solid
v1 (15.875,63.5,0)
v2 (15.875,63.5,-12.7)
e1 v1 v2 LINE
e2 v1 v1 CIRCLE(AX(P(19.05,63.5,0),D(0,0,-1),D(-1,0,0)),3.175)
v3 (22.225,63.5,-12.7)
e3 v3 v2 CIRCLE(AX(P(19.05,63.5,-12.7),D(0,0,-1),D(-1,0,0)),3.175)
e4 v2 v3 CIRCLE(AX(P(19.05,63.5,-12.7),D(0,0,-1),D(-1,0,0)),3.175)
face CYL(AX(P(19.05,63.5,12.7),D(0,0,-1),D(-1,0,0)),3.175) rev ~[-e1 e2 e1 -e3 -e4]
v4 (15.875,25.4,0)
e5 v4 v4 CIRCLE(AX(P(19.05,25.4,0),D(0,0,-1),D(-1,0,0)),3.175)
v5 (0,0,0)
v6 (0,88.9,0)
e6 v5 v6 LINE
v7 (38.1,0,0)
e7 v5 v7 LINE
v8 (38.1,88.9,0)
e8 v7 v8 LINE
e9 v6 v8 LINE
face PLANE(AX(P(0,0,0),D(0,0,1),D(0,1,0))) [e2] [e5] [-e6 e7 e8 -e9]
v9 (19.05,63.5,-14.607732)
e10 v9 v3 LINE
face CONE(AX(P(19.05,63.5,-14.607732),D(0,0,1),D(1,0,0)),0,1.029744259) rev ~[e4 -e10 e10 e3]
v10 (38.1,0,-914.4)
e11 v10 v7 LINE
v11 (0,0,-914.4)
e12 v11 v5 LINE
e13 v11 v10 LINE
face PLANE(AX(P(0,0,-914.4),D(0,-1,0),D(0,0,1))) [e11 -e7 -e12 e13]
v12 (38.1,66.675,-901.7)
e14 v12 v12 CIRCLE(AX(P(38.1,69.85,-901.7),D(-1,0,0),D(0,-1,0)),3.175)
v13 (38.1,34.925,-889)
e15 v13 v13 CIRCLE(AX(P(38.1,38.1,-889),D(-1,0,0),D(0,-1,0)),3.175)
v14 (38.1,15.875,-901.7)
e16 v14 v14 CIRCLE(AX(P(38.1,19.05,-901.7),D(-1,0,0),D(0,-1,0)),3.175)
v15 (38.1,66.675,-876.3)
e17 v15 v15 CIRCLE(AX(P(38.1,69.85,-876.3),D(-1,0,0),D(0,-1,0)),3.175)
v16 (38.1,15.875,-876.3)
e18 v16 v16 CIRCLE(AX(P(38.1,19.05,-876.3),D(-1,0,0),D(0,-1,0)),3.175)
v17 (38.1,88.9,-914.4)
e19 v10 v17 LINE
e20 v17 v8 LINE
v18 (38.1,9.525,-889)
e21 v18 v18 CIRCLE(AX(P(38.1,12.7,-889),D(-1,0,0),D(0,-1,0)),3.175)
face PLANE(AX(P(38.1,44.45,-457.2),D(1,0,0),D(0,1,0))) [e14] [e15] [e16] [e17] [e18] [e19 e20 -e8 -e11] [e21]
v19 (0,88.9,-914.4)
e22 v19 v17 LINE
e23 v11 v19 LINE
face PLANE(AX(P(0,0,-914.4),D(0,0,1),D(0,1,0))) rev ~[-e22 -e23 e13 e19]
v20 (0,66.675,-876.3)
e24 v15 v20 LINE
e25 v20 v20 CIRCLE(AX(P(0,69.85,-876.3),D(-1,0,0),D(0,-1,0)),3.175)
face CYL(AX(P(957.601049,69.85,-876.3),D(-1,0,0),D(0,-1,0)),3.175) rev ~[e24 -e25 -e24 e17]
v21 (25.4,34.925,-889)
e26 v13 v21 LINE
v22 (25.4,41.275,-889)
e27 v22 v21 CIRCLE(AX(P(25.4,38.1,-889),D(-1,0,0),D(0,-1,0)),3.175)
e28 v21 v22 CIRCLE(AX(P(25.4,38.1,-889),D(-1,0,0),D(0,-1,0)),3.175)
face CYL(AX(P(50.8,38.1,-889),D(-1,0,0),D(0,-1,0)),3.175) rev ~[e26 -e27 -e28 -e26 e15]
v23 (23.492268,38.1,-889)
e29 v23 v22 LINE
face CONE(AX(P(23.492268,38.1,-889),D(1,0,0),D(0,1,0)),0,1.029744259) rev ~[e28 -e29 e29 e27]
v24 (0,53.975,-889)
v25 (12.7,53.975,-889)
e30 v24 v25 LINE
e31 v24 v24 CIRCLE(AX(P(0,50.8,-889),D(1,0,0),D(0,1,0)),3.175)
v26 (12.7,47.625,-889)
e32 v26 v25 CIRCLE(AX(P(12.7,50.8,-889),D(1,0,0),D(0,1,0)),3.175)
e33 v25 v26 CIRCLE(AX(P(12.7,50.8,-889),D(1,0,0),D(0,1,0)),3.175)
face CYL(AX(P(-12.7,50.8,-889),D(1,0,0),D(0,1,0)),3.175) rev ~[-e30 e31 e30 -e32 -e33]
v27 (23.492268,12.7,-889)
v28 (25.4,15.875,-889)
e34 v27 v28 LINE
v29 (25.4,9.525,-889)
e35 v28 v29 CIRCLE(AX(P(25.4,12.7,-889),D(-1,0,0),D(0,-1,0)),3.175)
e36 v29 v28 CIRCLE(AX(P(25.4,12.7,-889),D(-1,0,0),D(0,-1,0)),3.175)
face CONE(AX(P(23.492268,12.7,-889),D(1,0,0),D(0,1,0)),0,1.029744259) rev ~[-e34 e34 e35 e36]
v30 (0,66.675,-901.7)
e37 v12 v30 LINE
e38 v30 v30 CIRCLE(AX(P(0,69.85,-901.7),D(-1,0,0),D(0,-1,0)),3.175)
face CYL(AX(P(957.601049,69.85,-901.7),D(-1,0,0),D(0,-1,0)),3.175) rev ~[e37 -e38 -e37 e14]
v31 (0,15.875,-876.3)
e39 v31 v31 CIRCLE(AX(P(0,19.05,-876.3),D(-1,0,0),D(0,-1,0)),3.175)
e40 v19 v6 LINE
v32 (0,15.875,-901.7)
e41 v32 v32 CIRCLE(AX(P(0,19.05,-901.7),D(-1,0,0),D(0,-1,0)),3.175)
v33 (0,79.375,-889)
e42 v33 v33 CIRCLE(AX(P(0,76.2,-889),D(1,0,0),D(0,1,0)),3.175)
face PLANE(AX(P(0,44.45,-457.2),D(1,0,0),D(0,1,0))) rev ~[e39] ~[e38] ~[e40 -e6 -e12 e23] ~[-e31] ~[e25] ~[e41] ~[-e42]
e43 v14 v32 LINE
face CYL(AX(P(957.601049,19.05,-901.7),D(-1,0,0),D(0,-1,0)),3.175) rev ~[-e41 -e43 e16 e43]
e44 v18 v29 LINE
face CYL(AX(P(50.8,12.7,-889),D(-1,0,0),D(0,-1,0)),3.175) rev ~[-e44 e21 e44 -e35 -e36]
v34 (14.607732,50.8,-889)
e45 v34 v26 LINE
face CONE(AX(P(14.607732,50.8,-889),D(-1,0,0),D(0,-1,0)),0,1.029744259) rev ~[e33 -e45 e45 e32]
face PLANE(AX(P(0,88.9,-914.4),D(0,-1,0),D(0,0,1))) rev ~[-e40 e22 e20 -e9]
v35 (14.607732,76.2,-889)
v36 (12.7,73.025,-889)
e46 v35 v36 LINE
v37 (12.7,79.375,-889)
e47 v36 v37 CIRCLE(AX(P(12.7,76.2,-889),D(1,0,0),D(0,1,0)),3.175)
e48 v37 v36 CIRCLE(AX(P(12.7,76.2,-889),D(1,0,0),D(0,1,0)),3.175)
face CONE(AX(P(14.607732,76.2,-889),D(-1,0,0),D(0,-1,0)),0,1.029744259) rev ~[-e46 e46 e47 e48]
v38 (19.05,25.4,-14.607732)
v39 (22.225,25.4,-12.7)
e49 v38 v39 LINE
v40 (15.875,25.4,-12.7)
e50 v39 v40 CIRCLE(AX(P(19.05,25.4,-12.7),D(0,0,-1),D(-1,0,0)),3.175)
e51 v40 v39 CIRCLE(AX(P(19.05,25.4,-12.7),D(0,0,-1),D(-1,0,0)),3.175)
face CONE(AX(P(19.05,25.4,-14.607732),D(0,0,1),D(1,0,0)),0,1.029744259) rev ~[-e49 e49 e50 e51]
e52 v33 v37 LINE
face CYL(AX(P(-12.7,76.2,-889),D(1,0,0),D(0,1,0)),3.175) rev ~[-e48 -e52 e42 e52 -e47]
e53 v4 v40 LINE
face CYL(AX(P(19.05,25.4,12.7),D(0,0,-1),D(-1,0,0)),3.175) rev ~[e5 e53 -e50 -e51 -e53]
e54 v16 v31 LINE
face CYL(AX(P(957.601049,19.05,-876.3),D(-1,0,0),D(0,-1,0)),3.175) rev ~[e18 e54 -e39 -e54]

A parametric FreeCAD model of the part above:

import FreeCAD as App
import Part
import Sketcher
Q = App.Units.Quantity

doc = App.newDocument("Part")
body = doc.addObject("PartDesign::Body", "Body")

sketch1 = doc.addObject("Sketcher::SketchObject", "Sketch")
body.addObject(sketch1)
sketch1.AttachmentSupport = (doc.YZ_Plane, [""])
sketch1.MapMode = "FlatFace"
sketch1.addGeometry([
    Part.LineSegment(App.Vector(0, 0, 0), App.Vector(0, -914.4, 0)),
    Part.LineSegment(App.Vector(0, -914.4, 0), App.Vector(88.9, -914.4, 0)),
    Part.LineSegment(App.Vector(88.9, -914.4, 0), App.Vector(88.9, 0, 0)),
    Part.LineSegment(App.Vector(88.9, 0, 0), App.Vector(0, 0, 0)),
], False)
sketch1.addConstraint([
    Sketcher.Constraint("Coincident", 0, 2, 1, 1),
    Sketcher.Constraint("Coincident", 1, 2, 2, 1),
    Sketcher.Constraint("Coincident", 2, 2, 3, 1),
    Sketcher.Constraint("Coincident", 3, 2, 0, 1),
    Sketcher.Constraint("Vertical", 0),
    Sketcher.Constraint("Horizontal", 1),
    Sketcher.Constraint("Vertical", 2),
    Sketcher.Constraint("Horizontal", 3),
    Sketcher.Constraint("Coincident", 3, 2, -1, 1),
    Sketcher.Constraint("DistanceY", 0, 2, 0, 1, Q("36 in")),
    Sketcher.Constraint("DistanceX", 1, 1, 1, 2, Q("3.5 in")),
])
pad1 = doc.addObject("PartDesign::Pad", "Pad")
body.addObject(pad1)
pad1.Profile = sketch1
pad1.Length = Q("1.5 in")

sketch2 = doc.addObject("Sketcher::SketchObject", "Sketch001")
body.addObject(sketch2)
sketch2.AttachmentSupport = (doc.YZ_Plane, [""])
sketch2.MapMode = "FlatFace"
sketch2.AttachmentOffset = App.Placement(App.Vector(0, 0, 1.5 * 25.4), App.Rotation())
sketch2.addGeometry([
    Part.Circle(App.Vector(19.05, -876.3, 0), App.Vector(0, 0, 1), 3.175),
    Part.Circle(App.Vector(19.05, -901.7, 0), App.Vector(0, 0, 1), 3.175),
    Part.Circle(App.Vector(69.85, -876.3, 0), App.Vector(0, 0, 1), 3.175),
    Part.Circle(App.Vector(69.85, -901.7, 0), App.Vector(0, 0, 1), 3.175),
], False)
sketch2.addConstraint([
    Sketcher.Constraint("Equal", 0, 1),
    Sketcher.Constraint("Equal", 1, 2),
    Sketcher.Constraint("Equal", 2, 3),
    Sketcher.Constraint("Horizontal", 0, 3, 2, 3),
    Sketcher.Constraint("Horizontal", 1, 3, 3, 3),
    Sketcher.Constraint("Vertical", 0, 3, 1, 3),
    Sketcher.Constraint("Vertical", 2, 3, 3, 3),
    Sketcher.Constraint("Diameter", 0, Q("0.25 in")),
    Sketcher.Constraint("DistanceY", 1, 3, 0, 3, Q("1 in")),
    Sketcher.Constraint("DistanceX", 0, 3, 2, 3, Q("2 in")),
    Sketcher.Constraint("DistanceY", 0, 3, -1, 1, Q("34.5 in")),
    Sketcher.Constraint("DistanceX", -1, 1, 0, 3, Q("0.75 in")),
])
doc.recompute()
hole = doc.addObject("PartDesign::Hole", "Hole")
body.addObject(hole)
hole.Profile = sketch2
hole.ThreadType = "None"
hole.Diameter = Q("0.25 in")
hole.DepthType = "ThroughAll"

sketch3 = doc.addObject("Sketcher::SketchObject", "Sketch002")
body.addObject(sketch3)
sketch3.AttachmentSupport = (doc.YZ_Plane, [""])
sketch3.MapMode = "FlatFace"
sketch3.addGeometry([
    Part.Circle(App.Vector(76.2, -889, 0), App.Vector(0, 0, 1), 3.175),
    Part.Circle(App.Vector(50.8, -889, 0), App.Vector(0, 0, 1), 3.175),
], False)
sketch3.addConstraint([
    Sketcher.Constraint("Equal", 0, 1),
    Sketcher.Constraint("Horizontal", 0, 3, 1, 3),
    Sketcher.Constraint("Diameter", 0, Q("0.25 in")),
    Sketcher.Constraint("DistanceX", -1, 1, 0, 3, Q("3 in")),
    Sketcher.Constraint("DistanceY", 0, 3, -1, 1, Q("35 in")),
    Sketcher.Constraint("DistanceX", -1, 1, 1, 3, Q("2 in")),
])
doc.recompute()
hole2 = doc.addObject("PartDesign::Hole", "Hole001")
body.addObject(hole2)
hole2.Profile = sketch3
hole2.ThreadType = "None"
hole2.Diameter = Q("0.25 in")
hole2.DepthType = "Dimension"
hole2.Depth = Q("0.5 in")
hole2.DrillPoint = "Angled"
hole2.DrillPointAngle = 118
hole2.Reversed = True

sketch4 = doc.addObject("Sketcher::SketchObject", "Sketch003")
body.addObject(sketch4)
sketch4.AttachmentSupport = (doc.YZ_Plane, [""])
sketch4.MapMode = "FlatFace"
sketch4.AttachmentOffset = App.Placement(App.Vector(0, 0, 1.5 * 25.4), App.Rotation())
sketch4.addGeometry([
    Part.Circle(App.Vector(12.7, -889, 0), App.Vector(0, 0, 1), 3.175),
    Part.Circle(App.Vector(38.1, -889, 0), App.Vector(0, 0, 1), 3.175),
], False)
sketch4.addConstraint([
    Sketcher.Constraint("Equal", 0, 1),
    Sketcher.Constraint("Horizontal", 0, 3, 1, 3),
    Sketcher.Constraint("Diameter", 0, Q("0.25 in")),
    Sketcher.Constraint("DistanceY", 0, 3, -1, 1, Q("35 in")),
    Sketcher.Constraint("DistanceX", 0, 3, 1, 3, Q("1 in")),
    Sketcher.Constraint("DistanceX", -1, 1, 0, 3, Q("0.5 in")),
])
doc.recompute()
hole3 = doc.addObject("PartDesign::Hole", "Hole002")
body.addObject(hole3)
hole3.Profile = sketch4
hole3.ThreadType = "None"
hole3.Diameter = Q("0.25 in")
hole3.DepthType = "Dimension"
hole3.Depth = Q("0.5 in")
hole3.DrillPoint = "Angled"
hole3.DrillPointAngle = 118

sketch5 = doc.addObject("Sketcher::SketchObject", "Sketch004")
body.addObject(sketch5)
sketch5.AttachmentSupport = (doc.XY_Plane, [""])
sketch5.MapMode = "FlatFace"
sketch5.addGeometry([
    Part.Circle(App.Vector(19.05, 63.5, 0), App.Vector(0, 0, 1), 3.175),
    Part.Circle(App.Vector(19.05, 25.4, 0), App.Vector(0, 0, 1), 3.175),
], False)
sketch5.addConstraint([
    Sketcher.Constraint("Equal", 0, 1),
    Sketcher.Constraint("Vertical", 0, 3, 1, 3),
    Sketcher.Constraint("Diameter", 0, Q("0.25 in")),
    Sketcher.Constraint("DistanceY", -1, 1, 1, 3, Q("1 in")),
    Sketcher.Constraint("DistanceY", -1, 1, 0, 3, Q("2.5 in")),
    Sketcher.Constraint("DistanceX", -1, 1, 0, 3, Q("0.75 in")),
])
doc.recompute()
hole4 = doc.addObject("PartDesign::Hole", "Hole003")
body.addObject(hole4)
hole4.Profile = sketch5
hole4.ThreadType = "None"
hole4.Diameter = Q("0.25 in")
hole4.DepthType = "Dimension"
hole4.Depth = Q("0.5 in")
hole4.DrillPoint = "Angled"
hole4.DrillPointAngle = 118

doc.recompute()
